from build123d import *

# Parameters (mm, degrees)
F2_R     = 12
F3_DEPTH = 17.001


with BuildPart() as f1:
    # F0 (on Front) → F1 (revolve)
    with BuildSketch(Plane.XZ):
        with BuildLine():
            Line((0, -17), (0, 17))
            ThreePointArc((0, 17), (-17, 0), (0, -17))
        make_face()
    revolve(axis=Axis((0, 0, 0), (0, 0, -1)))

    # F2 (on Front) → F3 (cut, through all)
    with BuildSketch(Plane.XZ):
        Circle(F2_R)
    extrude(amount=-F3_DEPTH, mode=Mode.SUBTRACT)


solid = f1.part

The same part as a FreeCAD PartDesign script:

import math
import FreeCAD as App
import Part
import Sketcher
Q = App.Units.Quantity

doc = App.newDocument("Part")
body = doc.addObject("PartDesign::Body", "Body")

# Sketch on XZ plane
sketch1 = body.newObject("Sketcher::SketchObject", "Sketch")
sketch1.AttachmentSupport = (doc.getObject("XZ_Plane"), [""])
sketch1.MapMode = "FlatFace"
sketch1.addGeometry(Part.LineSegment(App.Vector(0, -17, 0), App.Vector(0, 17, 0)), False)
sketch1.addGeometry(Part.ArcOfCircle(Part.Circle(App.Vector(0, 0, 0), App.Vector(0, 0, 1), 17), math.radians(90), math.radians(270)), False)
sketch1.addConstraint(Sketcher.Constraint("Coincident", 0, 1, 1, 2))
sketch1.addConstraint(Sketcher.Constraint("Coincident", 1, 1, 0, 2))
sketch1.addConstraint(Sketcher.Constraint("Vertical", 0))
sketch1.addConstraint(Sketcher.Constraint("Coincident", 1, 3, -1, 1))
sketch1.addConstraint(Sketcher.Constraint("PointOnObject", 0, 1, -2))
sketch1.addConstraint(Sketcher.Constraint("Radius", 1, Q("17 mm")))
revolution = body.newObject("PartDesign::Revolution", "Revolution")
revolution.Profile = sketch1
revolution.ReferenceAxis = (sketch1, ["V_Axis"])
revolution.Angle = 360

# Sketch on XZ plane
sketch2 = body.newObject("Sketcher::SketchObject", "Sketch001")
sketch2.AttachmentSupport = (doc.getObject("XZ_Plane"), [""])
sketch2.MapMode = "FlatFace"
sketch2.addGeometry(Part.Circle(App.Vector(0, 0, 0), App.Vector(0, 0, 1), 12), False)
sketch2.addConstraint(Sketcher.Constraint("Coincident", 0, 3, -1, 1))
sketch2.addConstraint(Sketcher.Constraint("Diameter", 0, Q("24 mm")))
pocket1 = body.newObject("PartDesign::Pocket", "Pocket")
pocket1.Profile = sketch2
pocket1.Type = "ThroughAll"

doc.recompute()
